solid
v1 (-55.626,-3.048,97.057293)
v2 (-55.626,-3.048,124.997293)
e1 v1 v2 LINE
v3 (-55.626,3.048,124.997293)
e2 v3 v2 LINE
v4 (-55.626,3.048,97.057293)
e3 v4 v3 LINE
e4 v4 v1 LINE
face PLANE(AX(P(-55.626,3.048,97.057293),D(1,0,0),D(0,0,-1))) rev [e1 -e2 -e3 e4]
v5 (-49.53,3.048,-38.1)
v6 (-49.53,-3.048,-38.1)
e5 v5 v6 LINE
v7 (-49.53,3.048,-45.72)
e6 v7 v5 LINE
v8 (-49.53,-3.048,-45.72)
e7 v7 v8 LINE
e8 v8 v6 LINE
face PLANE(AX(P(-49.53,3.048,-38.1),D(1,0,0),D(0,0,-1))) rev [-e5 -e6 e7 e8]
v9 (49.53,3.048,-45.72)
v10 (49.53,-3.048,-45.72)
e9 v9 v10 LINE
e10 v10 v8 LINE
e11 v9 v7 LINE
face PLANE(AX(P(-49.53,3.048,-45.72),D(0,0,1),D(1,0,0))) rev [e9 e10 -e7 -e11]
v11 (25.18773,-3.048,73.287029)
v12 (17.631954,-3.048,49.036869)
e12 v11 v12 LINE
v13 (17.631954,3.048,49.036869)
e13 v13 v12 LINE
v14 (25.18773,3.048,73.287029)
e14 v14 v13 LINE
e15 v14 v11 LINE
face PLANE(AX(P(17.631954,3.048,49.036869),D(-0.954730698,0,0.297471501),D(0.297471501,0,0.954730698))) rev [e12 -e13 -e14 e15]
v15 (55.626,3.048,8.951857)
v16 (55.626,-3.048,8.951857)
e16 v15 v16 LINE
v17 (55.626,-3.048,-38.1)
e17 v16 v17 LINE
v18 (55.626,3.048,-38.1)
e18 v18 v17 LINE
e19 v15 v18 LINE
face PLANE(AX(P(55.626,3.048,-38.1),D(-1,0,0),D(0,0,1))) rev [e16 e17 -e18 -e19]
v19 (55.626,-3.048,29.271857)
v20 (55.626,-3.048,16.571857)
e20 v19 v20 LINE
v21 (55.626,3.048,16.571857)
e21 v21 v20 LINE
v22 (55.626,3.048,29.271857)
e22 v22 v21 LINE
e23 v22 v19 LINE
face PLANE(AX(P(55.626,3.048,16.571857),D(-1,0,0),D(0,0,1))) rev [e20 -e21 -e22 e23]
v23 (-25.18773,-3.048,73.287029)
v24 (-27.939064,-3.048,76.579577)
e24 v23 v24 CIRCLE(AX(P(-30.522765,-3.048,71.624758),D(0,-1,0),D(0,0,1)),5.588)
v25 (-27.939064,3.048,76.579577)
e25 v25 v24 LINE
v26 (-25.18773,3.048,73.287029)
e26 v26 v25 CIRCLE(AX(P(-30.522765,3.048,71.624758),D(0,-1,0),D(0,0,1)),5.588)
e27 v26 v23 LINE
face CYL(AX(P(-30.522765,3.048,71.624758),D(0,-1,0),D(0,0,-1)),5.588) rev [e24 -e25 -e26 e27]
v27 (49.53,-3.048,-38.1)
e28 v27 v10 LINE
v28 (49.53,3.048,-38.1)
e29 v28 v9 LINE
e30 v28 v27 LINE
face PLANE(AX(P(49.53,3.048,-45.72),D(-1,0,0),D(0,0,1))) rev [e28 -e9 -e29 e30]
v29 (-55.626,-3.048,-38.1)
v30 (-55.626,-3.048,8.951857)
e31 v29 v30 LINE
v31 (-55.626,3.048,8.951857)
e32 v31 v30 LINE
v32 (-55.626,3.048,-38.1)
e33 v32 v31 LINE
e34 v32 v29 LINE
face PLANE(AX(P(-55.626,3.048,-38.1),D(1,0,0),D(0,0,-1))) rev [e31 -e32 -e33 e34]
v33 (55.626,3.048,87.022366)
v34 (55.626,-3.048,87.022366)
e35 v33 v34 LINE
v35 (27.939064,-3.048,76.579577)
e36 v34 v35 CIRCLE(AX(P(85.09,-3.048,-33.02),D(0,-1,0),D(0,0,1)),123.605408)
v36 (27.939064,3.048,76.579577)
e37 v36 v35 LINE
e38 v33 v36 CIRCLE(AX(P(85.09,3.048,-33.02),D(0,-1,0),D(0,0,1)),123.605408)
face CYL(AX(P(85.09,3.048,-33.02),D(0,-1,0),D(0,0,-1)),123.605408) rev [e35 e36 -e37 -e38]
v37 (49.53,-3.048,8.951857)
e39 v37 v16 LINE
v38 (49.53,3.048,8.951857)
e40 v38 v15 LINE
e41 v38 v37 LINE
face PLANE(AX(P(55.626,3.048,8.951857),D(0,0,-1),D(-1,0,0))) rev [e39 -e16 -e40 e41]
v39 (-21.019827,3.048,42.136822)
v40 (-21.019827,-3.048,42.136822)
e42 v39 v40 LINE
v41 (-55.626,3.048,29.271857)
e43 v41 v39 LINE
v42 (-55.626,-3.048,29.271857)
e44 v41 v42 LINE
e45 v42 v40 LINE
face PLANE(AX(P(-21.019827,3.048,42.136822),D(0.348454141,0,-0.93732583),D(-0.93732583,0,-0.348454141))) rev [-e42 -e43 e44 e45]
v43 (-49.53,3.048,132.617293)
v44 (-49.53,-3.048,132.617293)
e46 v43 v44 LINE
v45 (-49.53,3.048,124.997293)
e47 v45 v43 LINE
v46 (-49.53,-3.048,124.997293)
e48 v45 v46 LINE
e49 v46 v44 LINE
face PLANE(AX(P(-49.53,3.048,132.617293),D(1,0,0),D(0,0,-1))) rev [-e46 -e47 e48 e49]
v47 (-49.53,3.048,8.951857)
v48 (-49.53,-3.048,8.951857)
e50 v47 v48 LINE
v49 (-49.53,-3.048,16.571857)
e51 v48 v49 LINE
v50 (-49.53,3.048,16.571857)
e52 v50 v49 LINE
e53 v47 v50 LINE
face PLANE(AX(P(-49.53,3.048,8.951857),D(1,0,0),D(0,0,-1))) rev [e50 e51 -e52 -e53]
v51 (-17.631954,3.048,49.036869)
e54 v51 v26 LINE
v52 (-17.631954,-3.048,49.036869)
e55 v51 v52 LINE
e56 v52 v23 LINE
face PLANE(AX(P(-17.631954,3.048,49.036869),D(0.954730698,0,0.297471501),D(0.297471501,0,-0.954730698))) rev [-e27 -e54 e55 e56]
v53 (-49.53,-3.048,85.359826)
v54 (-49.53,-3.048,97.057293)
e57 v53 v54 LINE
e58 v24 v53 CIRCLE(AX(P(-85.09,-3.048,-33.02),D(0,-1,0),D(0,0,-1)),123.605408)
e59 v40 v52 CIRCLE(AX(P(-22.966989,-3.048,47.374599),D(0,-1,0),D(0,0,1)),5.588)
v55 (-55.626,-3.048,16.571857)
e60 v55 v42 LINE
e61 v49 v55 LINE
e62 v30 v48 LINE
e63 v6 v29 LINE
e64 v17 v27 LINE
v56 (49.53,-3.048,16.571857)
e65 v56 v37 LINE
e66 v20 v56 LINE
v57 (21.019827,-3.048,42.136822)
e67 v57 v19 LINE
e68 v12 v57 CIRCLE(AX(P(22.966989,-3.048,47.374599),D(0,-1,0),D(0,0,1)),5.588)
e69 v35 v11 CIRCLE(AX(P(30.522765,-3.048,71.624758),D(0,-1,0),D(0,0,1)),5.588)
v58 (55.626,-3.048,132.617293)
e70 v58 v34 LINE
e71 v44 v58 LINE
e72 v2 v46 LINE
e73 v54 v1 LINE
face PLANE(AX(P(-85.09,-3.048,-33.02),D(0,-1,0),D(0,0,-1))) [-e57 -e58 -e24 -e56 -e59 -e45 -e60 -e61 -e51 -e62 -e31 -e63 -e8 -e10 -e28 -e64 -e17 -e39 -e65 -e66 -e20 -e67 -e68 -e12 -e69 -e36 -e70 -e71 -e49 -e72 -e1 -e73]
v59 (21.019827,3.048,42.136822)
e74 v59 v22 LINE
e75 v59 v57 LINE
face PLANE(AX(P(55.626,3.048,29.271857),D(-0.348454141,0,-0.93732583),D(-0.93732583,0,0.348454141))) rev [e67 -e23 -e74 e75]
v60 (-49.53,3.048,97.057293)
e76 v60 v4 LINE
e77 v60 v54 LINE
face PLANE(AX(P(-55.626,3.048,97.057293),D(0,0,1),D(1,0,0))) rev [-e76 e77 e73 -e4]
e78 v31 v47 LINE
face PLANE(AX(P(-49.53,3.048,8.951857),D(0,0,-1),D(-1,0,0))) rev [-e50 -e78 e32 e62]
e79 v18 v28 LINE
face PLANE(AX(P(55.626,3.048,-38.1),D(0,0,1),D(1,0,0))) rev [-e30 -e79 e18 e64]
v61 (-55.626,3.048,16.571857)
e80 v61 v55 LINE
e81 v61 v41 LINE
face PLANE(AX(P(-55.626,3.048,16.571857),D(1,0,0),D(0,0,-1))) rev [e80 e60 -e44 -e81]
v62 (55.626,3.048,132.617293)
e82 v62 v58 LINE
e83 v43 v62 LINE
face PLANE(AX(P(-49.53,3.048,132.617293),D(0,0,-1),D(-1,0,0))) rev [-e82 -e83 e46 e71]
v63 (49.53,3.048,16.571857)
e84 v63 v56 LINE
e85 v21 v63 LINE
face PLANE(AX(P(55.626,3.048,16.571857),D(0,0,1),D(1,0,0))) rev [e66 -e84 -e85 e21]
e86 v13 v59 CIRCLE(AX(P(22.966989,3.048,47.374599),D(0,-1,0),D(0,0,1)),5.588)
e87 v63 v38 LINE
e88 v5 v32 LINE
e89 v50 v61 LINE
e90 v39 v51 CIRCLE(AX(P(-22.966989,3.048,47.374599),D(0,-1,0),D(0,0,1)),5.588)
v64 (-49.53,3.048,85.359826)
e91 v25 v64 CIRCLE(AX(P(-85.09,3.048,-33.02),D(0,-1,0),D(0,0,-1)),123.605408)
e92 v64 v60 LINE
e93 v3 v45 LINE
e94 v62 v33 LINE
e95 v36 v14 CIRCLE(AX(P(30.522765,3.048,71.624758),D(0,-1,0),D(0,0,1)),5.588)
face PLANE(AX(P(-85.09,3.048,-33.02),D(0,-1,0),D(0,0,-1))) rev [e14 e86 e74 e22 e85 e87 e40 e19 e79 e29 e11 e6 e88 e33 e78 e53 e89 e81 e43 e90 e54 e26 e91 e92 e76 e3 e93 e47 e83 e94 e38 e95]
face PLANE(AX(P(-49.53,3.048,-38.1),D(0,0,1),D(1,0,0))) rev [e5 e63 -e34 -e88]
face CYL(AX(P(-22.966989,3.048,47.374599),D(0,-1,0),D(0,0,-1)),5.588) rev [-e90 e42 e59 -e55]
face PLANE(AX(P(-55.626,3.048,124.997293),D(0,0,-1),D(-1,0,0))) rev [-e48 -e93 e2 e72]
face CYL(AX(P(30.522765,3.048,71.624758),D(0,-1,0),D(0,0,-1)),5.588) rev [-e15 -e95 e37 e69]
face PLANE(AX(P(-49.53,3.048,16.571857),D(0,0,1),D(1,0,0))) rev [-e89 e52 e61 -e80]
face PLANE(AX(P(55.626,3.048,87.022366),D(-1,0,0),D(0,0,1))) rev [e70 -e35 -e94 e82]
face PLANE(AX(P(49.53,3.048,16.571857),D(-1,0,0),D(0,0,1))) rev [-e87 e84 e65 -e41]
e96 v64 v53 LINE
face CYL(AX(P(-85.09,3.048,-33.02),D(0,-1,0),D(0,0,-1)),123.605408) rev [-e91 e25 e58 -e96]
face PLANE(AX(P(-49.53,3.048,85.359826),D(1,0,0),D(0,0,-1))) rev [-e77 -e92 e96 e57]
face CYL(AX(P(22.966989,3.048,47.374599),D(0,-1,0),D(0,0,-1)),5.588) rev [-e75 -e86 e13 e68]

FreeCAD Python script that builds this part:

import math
import FreeCAD as App
import Part
import Sketcher
Q = App.Units.Quantity

doc = App.newDocument("Part")
body = doc.addObject("PartDesign::Body", "Body")

sketch1 = body.newObject("Sketcher::SketchObject", "Sketch")
sketch1.AttachmentSupport = (doc.getObject("XZ_Plane"), [""])
sketch1.MapMode = "FlatFace"
sketch1.addGeometry([
    Part.LineSegment(App.Vector(49.5, -45.7, 0), App.Vector(-49.5, -45.7, 0)),
    Part.LineSegment(App.Vector(-49.5, -45.7, 0), App.Vector(-49.5, -38.1, 0)),
    Part.LineSegment(App.Vector(-49.5, -38.1, 0), App.Vector(-55.6, -38.1, 0)),
    Part.LineSegment(App.Vector(-55.6, -38.1, 0), App.Vector(-55.6, 9, 0)),
    Part.LineSegment(App.Vector(-55.6, 9, 0), App.Vector(-49.5, 9, 0)),
    Part.LineSegment(App.Vector(-49.5, 9, 0), App.Vector(-49.5, 16.6, 0)),
    Part.LineSegment(App.Vector(-49.5, 16.6, 0), App.Vector(-55.6, 16.6, 0)),
    Part.LineSegment(App.Vector(-55.6, 16.6, 0), App.Vector(-55.6, 29.3, 0)),
    Part.LineSegment(App.Vector(-55.6, 29.3, 0), App.Vector(-21, 42.1, 0)),
    Part.ArcOfCircle(Part.Circle(App.Vector(-23, 47.4, 0), App.Vector(0, 0, 1), 5.6), math.radians(-70), math.radians(17)),
    Part.LineSegment(App.Vector(-17.6, 49, 0), App.Vector(-25.2, 73.3, 0)),
    Part.ArcOfCircle(Part.Circle(App.Vector(-30.5, 71.6, 0), App.Vector(0, 0, 1), 5.6), math.radians(17), math.radians(62)),
    Part.ArcOfCircle(Part.Circle(App.Vector(-85.1, -33, 0), App.Vector(0, 0, 1), 123.6), math.radians(62.46), math.radians(73.28)),
    Part.LineSegment(App.Vector(-49.5, 85.4, 0), App.Vector(-49.5, 97.1, 0)),
    Part.LineSegment(App.Vector(-49.5, 97.1, 0), App.Vector(-55.6, 97.1, 0)),
    Part.LineSegment(App.Vector(-55.6, 97.1, 0), App.Vector(-55.6, 125, 0)),
    Part.LineSegment(App.Vector(-55.6, 125, 0), App.Vector(-49.5, 125, 0)),
    Part.LineSegment(App.Vector(-49.5, 125, 0), App.Vector(-49.5, 132.6, 0)),
    Part.LineSegment(App.Vector(-49.5, 132.6, 0), App.Vector(55.6, 132.6, 0)),
    Part.LineSegment(App.Vector(55.6, 132.6, 0), App.Vector(55.6, 87, 0)),
    Part.ArcOfCircle(Part.Circle(App.Vector(85.1, -33, 0), App.Vector(0, 0, 1), 123.6), math.radians(103.79), math.radians(117.54)),
    Part.ArcOfCircle(Part.Circle(App.Vector(30.5, 71.6, 0), App.Vector(0, 0, 1), 5.6), math.radians(118), math.radians(163)),
    Part.LineSegment(App.Vector(25.2, 73.3, 0), App.Vector(17.6, 49, 0)),
    Part.ArcOfCircle(Part.Circle(App.Vector(23, 47.4, 0), App.Vector(0, 0, 1), 5.6), math.radians(163), math.radians(250)),
    Part.LineSegment(App.Vector(21, 42.1, 0), App.Vector(55.6, 29.3, 0)),
    Part.LineSegment(App.Vector(55.6, 29.3, 0), App.Vector(55.6, 16.6, 0)),
    Part.LineSegment(App.Vector(55.6, 16.6, 0), App.Vector(49.5, 16.6, 0)),
    Part.LineSegment(App.Vector(49.5, 16.6, 0), App.Vector(49.5, 9, 0)),
    Part.LineSegment(App.Vector(49.5, 9, 0), App.Vector(55.6, 9, 0)),
    Part.LineSegment(App.Vector(55.6, 9, 0), App.Vector(55.6, -38.1, 0)),
    Part.LineSegment(App.Vector(55.6, -38.1, 0), App.Vector(49.5, -38.1, 0)),
    Part.LineSegment(App.Vector(49.5, -38.1, 0), App.Vector(49.5, -45.7, 0)),
], False)
sketch1.addConstraint([
    Sketcher.Constraint("Coincident", 0, 2, 1, 1),
    Sketcher.Constraint("Coincident", 1, 2, 2, 1),
    Sketcher.Constraint("Coincident", 2, 2, 3, 1),
    Sketcher.Constraint("Coincident", 3, 2, 4, 1),
    Sketcher.Constraint("Coincident", 4, 2, 5, 1),
    Sketcher.Constraint("Coincident", 5, 2, 6, 1),
    Sketcher.Constraint("Coincident", 6, 2, 7, 1),
    Sketcher.Constraint("Coincident", 7, 2, 8, 1),
    Sketcher.Constraint("Tangent", 8, 2, 9, 1),
    Sketcher.Constraint("Tangent", 9, 2, 10, 1),
    Sketcher.Constraint("Tangent", 10, 2, 11, 1),
    Sketcher.Constraint("Tangent", 11, 2, 12, 1),
    Sketcher.Constraint("Coincident", 12, 2, 13, 1),
    Sketcher.Constraint("Coincident", 13, 2, 14, 1),
    Sketcher.Constraint("Coincident", 14, 2, 15, 1),
    Sketcher.Constraint("Coincident", 15, 2, 16, 1),
    Sketcher.Constraint("Coincident", 16, 2, 17, 1),
    Sketcher.Constraint("Coincident", 17, 2, 18, 1),
    Sketcher.Constraint("Coincident", 18, 2, 19, 1),
    Sketcher.Constraint("Coincident", 19, 2, 20, 1),
    Sketcher.Constraint("Tangent", 20, 2, 21, 1),
    Sketcher.Constraint("Tangent", 21, 2, 22, 1),
    Sketcher.Constraint("Tangent", 22, 2, 23, 1),
    Sketcher.Constraint("Tangent", 23, 2, 24, 1),
    Sketcher.Constraint("Coincident", 24, 2, 25, 1),
    Sketcher.Constraint("Coincident", 25, 2, 26, 1),
    Sketcher.Constraint("Coincident", 26, 2, 27, 1),
    Sketcher.Constraint("Coincident", 27, 2, 28, 1),
    Sketcher.Constraint("Coincident", 28, 2, 29, 1),
    Sketcher.Constraint("Coincident", 29, 2, 30, 1),
    Sketcher.Constraint("Coincident", 30, 2, 31, 1),
    Sketcher.Constraint("Coincident", 31, 2, 0, 1),
    Sketcher.Constraint("Horizontal", 0),
    Sketcher.Constraint("Vertical", 1),
    Sketcher.Constraint("Horizontal", 2),
    Sketcher.Constraint("Vertical", 3),
    Sketcher.Constraint("Horizontal", 4),
    Sketcher.Constraint("Vertical", 5),
    Sketcher.Constraint("Horizontal", 6),
    Sketcher.Constraint("Vertical", 7),
    Sketcher.Constraint("Vertical", 13),
    Sketcher.Constraint("Horizontal", 14),
    Sketcher.Constraint("Vertical", 15),
    Sketcher.Constraint("Horizontal", 16),
    Sketcher.Constraint("Vertical", 17),
    Sketcher.Constraint("Horizontal", 18),
    Sketcher.Constraint("Vertical", 19),
    Sketcher.Constraint("Vertical", 25),
    Sketcher.Constraint("Horizontal", 26),
    Sketcher.Constraint("Vertical", 27),
    Sketcher.Constraint("Horizontal", 28),
    Sketcher.Constraint("Vertical", 29),
    Sketcher.Constraint("Horizontal", 30),
    Sketcher.Constraint("Vertical", 31),
    Sketcher.Constraint("Equal", 9, 11),
    Sketcher.Constraint("Equal", 12, 20),
    Sketcher.Constraint("Equal", 11, 21),
    Sketcher.Constraint("Equal", 21, 23),
    Sketcher.Constraint("Symmetric", 12, 3, 20, 3, -2),
    Sketcher.Constraint("Symmetric", 9, 3, 23, 3, -2),
    Sketcher.Constraint("Symmetric", 7, 2, 24, 2, -2),
    Sketcher.Constraint("Symmetric", 5, 2, 26, 2, -2),
    Sketcher.Constraint("Symmetric", 3, 2, 28, 2, -2),
    Sketcher.Constraint("Symmetric", 1, 2, 30, 2, -2),
    Sketcher.Constraint("Horizontal", 11, 3, 21, 3),
    Sketcher.Constraint("Vertical", 1, 2, 4, 2),
    Sketcher.Constraint("Vertical", 3, 2, 6, 2),
    Sketcher.Constraint("Vertical", 5, 2, 12, 2),
    Sketcher.Constraint("Vertical", 7, 2, 14, 2),
    Sketcher.Constraint("Vertical", 13, 2, 16, 2),
    Sketcher.Constraint("Vertical", 19, 2, 24, 2),
    Sketcher.Constraint("Equal", 1, 5),
    Sketcher.Constraint("Equal", 5, 17),
    Sketcher.Constraint("Radius", 9, Q("0.22 in")),
    Sketcher.Constraint("Distance", 10, Q("1 in")),
    Sketcher.Constraint("DistanceX", 0, 2, 0, 1, Q("3.9 in")),
    Sketcher.Constraint("DistanceY", 1, 1, 1, 2, Q("0.3 in")),
    Sketcher.Constraint("DistanceY", 7, 1, 7, 2, Q("0.5 in")),
    Sketcher.Constraint("DistanceY", 15, 1, 15, 2, Q("1.1 in")),
    Sketcher.Constraint("DistanceX", 2, 2, 2, 1, Q("0.24 in")),
    Sketcher.Constraint("DistanceY", 12, 3, -1, 1, Q("1.3 in")),
    Sketcher.Constraint("DistanceY", 0, 2, -1, 1, Q("1.8 in")),
    Sketcher.Constraint("DistanceX", 12, 3, 20, 3, Q("6.7 in")),
    Sketcher.Constraint("Radius", 12, Q("123.605408 mm")),
    Sketcher.Constraint("DistanceY", -1, 1, 9, 3, Q("47.374599 mm")),
    Sketcher.Constraint("DistanceY", 24, 2, 21, 3, Q("42.352902 mm")),
    Sketcher.Constraint("Distance", 8, Q("36.92011 mm")),
    Sketcher.Constraint("DistanceY", 13, 1, 13, 2, Q("11.697467 mm")),
])
pad1 = body.newObject("PartDesign::Pad", "Pad")
pad1.Profile = sketch1
pad1.Length = Q("0.24 in")
pad1.Midplane = True

doc.recompute()
